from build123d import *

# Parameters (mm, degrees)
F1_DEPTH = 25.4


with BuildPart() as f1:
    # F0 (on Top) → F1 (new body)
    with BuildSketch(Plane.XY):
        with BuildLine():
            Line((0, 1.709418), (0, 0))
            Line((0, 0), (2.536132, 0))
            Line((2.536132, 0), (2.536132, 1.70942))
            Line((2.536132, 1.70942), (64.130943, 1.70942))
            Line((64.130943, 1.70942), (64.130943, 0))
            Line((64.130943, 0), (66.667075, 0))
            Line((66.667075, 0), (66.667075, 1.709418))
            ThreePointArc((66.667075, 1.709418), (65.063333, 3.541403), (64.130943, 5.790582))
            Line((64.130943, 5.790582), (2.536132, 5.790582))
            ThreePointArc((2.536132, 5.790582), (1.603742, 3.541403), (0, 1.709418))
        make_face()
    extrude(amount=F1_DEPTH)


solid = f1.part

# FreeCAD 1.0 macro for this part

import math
import FreeCAD as App
import Part
import Sketcher
Q = App.Units.Quantity

doc = App.newDocument("Part")
params = doc.addObject("Spreadsheet::Sheet", "Params")
for row, (alias, value) in enumerate([
    ("pad1_length", "1 in"),
], start=1):
    params.set(f"A{row}", alias)
    params.set(f"B{row}", "=" + value)
    params.setAlias(f"B{row}", alias)

body = doc.addObject("PartDesign::Body", "Body")

# Sketch on XY plane
sketch1 = body.newObject("Sketcher::SketchObject", "Sketch")
sketch1.AttachmentSupport = (doc.getObject("XY_Plane"), [""])
sketch1.MapMode = "FlatFace"
sketch1.addGeometry([
    Part.LineSegment(App.Vector(0, 1.7, 0), App.Vector(0, 0, 0)),  # 0
    Part.LineSegment(App.Vector(0, 0, 0), App.Vector(2.5, 0, 0)),  # 1
    Part.LineSegment(App.Vector(2.5, 0, 0), App.Vector(2.5, 1.7, 0)),  # 2
    Part.LineSegment(App.Vector(2.5, 1.7, 0), App.Vector(64.1, 1.7, 0)),  # 3
    Part.LineSegment(App.Vector(64.1, 1.7, 0), App.Vector(64.1, 0, 0)),  # 4
    Part.LineSegment(App.Vector(64.1, 0, 0), App.Vector(66.7, 0, 0)),  # 5
    Part.LineSegment(App.Vector(66.7, 0, 0), App.Vector(66.7, 1.7, 0)),  # 6
    Part.ArcOfCircle(Part.Circle(App.Vector(71.4, 7.5, 0), App.Vector(0, 0, 1), 7.5), math.radians(-167), math.radians(-129)),  # 7
    Part.LineSegment(App.Vector(64.1, 5.8, 0), App.Vector(2.5, 5.8, 0)),  # 8
    Part.ArcOfCircle(Part.Circle(App.Vector(-4.8, 7.5, 0), App.Vector(0, 0, 1), 7.5), math.radians(-51), math.radians(-13)),  # 9
], False)
sketch1.addConstraint([
    Sketcher.Constraint("Coincident", 0, 2, 1, 1),
    Sketcher.Constraint("Coincident", 1, 2, 2, 1),
    Sketcher.Constraint("Coincident", 2, 2, 3, 1),
    Sketcher.Constraint("Coincident", 3, 2, 4, 1),
    Sketcher.Constraint("Coincident", 4, 2, 5, 1),
    Sketcher.Constraint("Coincident", 5, 2, 6, 1),
    Sketcher.Constraint("Coincident", 6, 2, 7, 2),
    Sketcher.Constraint("Coincident", 7, 1, 8, 1),
    Sketcher.Constraint("Coincident", 8, 2, 9, 2),
    Sketcher.Constraint("Coincident", 9, 1, 0, 1),
    Sketcher.Constraint("Vertical", 0),
    Sketcher.Constraint("Horizontal", 1),
    Sketcher.Constraint("Vertical", 2),
    Sketcher.Constraint("Horizontal", 3),
    Sketcher.Constraint("Vertical", 4),
    Sketcher.Constraint("Horizontal", 5),
    Sketcher.Constraint("Vertical", 6),
    Sketcher.Constraint("Horizontal", 8),
    Sketcher.Constraint("Coincident", 0, 2, -1, 1),
    Sketcher.Constraint("Equal", 7, 9),
    Sketcher.Constraint("PointOnObject", 4, 2, -1),
    Sketcher.Constraint("Horizontal", 7, 3, 9, 3),
    Sketcher.Constraint("Horizontal", 3, 2, 6, 2),
    Sketcher.Constraint("Horizontal", 6, 2, 9, 1),
    Sketcher.Constraint("Vertical", 4, 2, 7, 1),
    Sketcher.Constraint("Vertical", 2, 2, 8, 2),
    Sketcher.Constraint("DistanceY", 0, 2, 0, 1, Q("0.0672999 in")),
    Sketcher.Constraint("Radius", 7, Q("7.500006 mm")),
    Sketcher.Constraint("DistanceY", 7, 1, 7, 3, Q("0.0673 in")),
    Sketcher.Constraint("DistanceX", 1, 1, 1, 2, Q("2.536132 mm")),
    Sketcher.Constraint("DistanceX", 3, 1, 3, 2, Q("61.594811 mm")),
])
pad1 = body.newObject("PartDesign::Pad", "Pad")
pad1.Profile = sketch1
pad1.setExpression("Length", "Params.pad1_length")

doc.recompute()
